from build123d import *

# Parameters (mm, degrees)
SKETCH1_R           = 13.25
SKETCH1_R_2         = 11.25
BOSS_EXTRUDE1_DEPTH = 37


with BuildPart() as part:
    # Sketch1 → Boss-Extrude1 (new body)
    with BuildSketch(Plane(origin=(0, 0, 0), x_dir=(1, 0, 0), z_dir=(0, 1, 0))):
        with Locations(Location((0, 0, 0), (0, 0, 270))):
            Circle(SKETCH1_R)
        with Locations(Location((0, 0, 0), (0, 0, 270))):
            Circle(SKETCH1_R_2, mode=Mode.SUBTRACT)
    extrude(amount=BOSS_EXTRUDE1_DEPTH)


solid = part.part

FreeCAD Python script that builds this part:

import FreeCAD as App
import Part
import Sketcher

doc = App.newDocument("Part")
params = doc.addObject("Spreadsheet::Sheet", "Params")
for row, (alias, value) in enumerate([
    ("sketch1_diameter", "26.5 mm"),
    ("sketch1_diameter2", "22.5 mm"),
    ("pad1_length", "37 mm"),
], start=1):
    params.set(f"A{row}", alias)
    params.set(f"B{row}", "=" + value)
    params.setAlias(f"B{row}", alias)

body = doc.addObject("PartDesign::Body", "Body")

sketch1 = doc.addObject("Sketcher::SketchObject", "Sketch")
body.addObject(sketch1)
sketch1.AttachmentSupport = (doc.XZ_Plane, [""])
sketch1.MapMode = "FlatFace"
sketch1.addGeometry(Part.Circle(App.Vector(0, 0, 0), App.Vector(0, 0, 1), 13), False)
sketch1.addGeometry(Part.Circle(App.Vector(0, 0, 0), App.Vector(0, 0, 1), 11), False)
sketch1.addConstraint(Sketcher.Constraint("Coincident", 0, 3, -1, 1))
sketch1.addConstraint(Sketcher.Constraint("Coincident", 1, 3, -1, 1))
sketch1.addConstraint(Sketcher.Constraint("Diameter", 0, 26.5))
sketch1.addConstraint(Sketcher.Constraint("Diameter", 1, 22.5))
sketch1.setExpression("Constraints[2]", "Params.sketch1_diameter")
sketch1.setExpression("Constraints[3]", "Params.sketch1_diameter2")
pad1 = doc.addObject("PartDesign::Pad", "Pad")
body.addObject(pad1)
pad1.Profile = sketch1
pad1.setExpression("Length", "Params.pad1_length")
pad1.Reversed = True

doc.recompute()
